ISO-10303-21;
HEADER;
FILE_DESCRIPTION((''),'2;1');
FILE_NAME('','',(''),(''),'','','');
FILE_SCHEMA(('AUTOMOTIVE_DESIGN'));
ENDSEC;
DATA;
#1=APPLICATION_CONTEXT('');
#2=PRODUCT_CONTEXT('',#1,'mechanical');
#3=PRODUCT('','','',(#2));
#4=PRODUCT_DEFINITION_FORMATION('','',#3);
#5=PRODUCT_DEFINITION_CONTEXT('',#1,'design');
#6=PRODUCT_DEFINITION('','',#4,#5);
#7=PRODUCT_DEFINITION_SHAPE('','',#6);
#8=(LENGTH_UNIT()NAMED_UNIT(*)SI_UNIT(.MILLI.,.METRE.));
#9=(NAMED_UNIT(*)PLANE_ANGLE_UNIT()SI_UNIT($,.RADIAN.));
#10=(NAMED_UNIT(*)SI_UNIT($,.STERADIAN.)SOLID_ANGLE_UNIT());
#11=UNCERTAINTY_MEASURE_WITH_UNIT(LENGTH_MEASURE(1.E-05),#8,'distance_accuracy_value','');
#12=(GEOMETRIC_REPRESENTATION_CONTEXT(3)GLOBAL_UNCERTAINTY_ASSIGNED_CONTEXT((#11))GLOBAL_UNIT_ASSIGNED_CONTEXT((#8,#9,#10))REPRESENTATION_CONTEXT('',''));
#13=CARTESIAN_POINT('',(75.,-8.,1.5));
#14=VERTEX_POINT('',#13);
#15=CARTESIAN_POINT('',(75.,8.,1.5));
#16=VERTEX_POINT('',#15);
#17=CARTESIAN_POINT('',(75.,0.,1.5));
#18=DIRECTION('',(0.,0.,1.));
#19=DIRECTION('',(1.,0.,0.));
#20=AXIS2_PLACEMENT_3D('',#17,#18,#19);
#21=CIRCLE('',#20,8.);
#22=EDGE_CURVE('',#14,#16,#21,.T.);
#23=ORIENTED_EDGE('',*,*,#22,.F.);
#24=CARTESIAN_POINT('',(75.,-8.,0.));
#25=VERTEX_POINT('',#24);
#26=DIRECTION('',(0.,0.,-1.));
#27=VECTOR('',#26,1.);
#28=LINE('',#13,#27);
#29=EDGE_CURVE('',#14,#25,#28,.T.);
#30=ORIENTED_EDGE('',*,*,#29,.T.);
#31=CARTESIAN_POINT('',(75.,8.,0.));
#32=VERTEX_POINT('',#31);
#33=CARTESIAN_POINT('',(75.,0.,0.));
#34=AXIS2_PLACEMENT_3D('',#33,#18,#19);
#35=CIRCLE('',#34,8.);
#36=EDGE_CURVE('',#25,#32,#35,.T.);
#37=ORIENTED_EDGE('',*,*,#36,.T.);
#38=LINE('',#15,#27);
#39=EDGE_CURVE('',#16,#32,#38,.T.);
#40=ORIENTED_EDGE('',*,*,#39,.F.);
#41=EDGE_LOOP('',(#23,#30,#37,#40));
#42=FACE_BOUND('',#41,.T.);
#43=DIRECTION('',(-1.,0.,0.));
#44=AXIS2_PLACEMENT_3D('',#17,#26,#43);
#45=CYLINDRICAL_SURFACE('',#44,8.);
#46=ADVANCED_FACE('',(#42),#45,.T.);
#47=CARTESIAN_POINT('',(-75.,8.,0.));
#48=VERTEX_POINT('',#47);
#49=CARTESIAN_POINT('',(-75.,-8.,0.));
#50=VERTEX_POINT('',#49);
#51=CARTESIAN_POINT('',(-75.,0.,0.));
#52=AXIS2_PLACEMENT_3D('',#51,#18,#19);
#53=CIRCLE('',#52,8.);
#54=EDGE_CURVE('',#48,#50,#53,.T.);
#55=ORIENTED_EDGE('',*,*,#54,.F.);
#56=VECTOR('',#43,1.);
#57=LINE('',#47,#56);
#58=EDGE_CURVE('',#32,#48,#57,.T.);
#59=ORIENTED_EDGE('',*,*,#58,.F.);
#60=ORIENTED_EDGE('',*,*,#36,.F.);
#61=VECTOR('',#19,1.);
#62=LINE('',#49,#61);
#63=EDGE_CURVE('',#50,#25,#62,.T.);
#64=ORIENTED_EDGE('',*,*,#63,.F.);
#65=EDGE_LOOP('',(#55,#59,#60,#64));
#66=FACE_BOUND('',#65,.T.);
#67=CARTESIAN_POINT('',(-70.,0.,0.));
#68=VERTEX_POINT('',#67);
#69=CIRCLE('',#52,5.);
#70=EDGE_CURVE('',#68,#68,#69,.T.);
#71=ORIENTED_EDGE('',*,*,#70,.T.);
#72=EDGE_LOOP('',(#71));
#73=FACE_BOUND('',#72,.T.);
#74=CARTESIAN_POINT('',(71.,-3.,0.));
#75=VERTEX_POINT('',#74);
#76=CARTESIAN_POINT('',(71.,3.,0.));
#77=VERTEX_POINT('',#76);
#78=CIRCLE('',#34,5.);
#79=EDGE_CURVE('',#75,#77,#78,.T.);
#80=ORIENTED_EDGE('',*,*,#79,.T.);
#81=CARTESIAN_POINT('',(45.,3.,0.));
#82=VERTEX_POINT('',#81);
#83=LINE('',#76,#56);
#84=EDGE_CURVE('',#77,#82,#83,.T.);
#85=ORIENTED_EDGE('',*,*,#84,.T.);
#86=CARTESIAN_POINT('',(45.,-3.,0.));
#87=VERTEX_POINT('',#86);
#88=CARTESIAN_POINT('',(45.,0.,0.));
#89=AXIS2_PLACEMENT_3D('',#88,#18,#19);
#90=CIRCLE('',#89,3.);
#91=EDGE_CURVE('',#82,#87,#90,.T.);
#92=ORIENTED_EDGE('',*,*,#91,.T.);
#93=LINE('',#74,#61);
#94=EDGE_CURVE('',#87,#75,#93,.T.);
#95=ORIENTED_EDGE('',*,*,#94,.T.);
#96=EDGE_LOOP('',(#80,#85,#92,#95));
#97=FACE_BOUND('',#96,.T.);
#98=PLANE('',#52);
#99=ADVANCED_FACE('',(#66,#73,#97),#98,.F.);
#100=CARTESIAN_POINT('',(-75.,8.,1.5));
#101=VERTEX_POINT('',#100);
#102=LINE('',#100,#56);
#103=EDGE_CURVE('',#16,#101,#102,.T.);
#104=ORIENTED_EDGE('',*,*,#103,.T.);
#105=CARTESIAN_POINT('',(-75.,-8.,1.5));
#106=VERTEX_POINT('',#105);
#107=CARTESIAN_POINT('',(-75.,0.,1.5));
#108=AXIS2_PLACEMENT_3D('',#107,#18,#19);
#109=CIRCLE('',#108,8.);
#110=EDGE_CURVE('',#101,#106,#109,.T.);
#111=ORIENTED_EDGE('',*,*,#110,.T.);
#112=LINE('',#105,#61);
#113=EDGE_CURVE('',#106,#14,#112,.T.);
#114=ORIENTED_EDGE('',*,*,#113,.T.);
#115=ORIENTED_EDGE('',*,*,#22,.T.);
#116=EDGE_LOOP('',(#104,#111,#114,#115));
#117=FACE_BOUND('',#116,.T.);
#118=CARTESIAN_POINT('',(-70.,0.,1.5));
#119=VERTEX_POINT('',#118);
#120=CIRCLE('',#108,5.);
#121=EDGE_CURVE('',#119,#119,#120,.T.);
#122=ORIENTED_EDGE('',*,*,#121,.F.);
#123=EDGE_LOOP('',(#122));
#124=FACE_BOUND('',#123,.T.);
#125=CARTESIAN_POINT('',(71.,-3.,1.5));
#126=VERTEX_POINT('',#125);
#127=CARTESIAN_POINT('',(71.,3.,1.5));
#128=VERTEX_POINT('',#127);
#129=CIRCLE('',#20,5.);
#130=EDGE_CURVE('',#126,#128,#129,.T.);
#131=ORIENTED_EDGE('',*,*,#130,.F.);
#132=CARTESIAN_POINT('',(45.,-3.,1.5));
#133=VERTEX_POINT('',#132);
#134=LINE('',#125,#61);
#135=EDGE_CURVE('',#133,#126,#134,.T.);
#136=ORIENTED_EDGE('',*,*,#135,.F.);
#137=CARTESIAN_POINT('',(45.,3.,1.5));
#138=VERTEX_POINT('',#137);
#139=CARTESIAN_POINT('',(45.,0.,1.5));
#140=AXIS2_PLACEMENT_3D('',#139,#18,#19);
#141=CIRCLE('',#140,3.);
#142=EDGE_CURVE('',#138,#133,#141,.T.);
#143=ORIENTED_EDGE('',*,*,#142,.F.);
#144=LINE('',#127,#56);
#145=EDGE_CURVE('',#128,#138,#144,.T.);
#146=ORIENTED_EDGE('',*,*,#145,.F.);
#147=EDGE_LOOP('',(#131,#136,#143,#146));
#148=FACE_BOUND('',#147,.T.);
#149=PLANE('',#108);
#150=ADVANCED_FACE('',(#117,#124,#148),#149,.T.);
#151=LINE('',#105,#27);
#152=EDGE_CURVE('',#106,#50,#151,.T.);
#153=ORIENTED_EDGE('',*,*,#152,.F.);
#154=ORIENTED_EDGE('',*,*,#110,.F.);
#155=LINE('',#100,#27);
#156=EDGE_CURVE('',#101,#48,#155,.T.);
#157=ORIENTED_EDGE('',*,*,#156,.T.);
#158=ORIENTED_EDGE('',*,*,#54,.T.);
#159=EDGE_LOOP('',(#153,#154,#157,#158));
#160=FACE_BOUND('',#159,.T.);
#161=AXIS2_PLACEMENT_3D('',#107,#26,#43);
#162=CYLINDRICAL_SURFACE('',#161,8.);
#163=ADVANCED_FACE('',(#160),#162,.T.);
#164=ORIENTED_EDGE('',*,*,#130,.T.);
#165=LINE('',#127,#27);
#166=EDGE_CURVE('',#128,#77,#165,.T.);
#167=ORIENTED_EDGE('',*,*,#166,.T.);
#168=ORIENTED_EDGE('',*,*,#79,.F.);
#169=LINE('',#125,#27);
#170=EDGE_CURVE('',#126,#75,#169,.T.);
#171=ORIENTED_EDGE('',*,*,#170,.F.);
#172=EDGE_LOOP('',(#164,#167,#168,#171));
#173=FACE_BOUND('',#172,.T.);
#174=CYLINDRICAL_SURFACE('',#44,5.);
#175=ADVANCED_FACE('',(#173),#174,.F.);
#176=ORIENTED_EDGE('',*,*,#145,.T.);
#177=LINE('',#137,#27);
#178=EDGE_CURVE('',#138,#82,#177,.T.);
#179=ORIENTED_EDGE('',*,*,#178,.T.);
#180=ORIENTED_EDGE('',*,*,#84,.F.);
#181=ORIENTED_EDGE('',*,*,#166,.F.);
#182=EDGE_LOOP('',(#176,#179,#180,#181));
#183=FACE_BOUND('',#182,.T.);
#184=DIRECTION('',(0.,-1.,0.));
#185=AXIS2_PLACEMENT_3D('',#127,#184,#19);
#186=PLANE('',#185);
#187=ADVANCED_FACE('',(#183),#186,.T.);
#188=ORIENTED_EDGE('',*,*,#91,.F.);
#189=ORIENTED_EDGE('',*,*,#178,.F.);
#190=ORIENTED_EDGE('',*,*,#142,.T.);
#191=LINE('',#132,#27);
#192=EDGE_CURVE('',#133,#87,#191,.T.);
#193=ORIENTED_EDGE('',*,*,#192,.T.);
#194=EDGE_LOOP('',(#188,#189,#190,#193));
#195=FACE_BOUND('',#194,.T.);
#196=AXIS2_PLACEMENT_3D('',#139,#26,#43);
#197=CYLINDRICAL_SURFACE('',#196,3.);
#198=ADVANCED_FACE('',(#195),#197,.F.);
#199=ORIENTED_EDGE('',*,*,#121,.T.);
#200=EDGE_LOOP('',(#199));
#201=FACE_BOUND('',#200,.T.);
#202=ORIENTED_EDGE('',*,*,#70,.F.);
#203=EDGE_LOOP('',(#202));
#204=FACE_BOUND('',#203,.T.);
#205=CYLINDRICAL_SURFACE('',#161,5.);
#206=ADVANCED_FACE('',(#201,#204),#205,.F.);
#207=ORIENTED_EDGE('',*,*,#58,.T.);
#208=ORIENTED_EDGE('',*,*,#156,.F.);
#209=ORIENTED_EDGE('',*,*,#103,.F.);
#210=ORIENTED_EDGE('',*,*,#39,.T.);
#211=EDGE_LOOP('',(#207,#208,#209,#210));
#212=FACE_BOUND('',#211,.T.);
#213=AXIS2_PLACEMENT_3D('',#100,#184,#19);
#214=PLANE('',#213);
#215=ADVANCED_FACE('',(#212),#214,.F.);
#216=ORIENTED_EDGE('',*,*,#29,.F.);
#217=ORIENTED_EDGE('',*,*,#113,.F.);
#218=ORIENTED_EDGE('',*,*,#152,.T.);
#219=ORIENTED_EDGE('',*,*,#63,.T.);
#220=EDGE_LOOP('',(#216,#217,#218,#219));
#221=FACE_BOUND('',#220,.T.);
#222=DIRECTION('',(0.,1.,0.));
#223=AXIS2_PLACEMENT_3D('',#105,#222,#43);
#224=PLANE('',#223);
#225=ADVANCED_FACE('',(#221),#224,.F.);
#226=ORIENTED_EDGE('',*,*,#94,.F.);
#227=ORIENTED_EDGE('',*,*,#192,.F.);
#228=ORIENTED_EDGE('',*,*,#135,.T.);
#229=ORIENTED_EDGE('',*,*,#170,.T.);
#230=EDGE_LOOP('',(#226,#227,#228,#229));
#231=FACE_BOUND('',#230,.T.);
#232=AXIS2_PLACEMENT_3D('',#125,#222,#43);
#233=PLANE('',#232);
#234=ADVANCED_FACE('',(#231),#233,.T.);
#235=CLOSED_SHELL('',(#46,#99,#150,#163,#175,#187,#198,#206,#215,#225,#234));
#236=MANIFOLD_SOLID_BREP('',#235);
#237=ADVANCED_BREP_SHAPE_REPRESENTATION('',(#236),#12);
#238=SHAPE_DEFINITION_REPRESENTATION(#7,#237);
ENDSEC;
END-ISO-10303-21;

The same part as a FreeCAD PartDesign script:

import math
import FreeCAD as App
import Part
import Sketcher
from FreeCAD import Vector
Q = App.Units.Quantity

doc = App.newDocument("Part")
params = doc.addObject("Spreadsheet::Sheet", "Params")
for row, (alias, value) in enumerate([
    ("sketch1_diameter", "10 mm"),
    ("sketch1_radius", "8 mm"),
    ("sketch1_radius2", "3 mm"),
    ("sketch1_width", "150 mm"),
    ("sketch1_width2", "26 mm"),
    ("pad1_length", "1.5 mm"),
], start=1):
    params.set(f"A{row}", alias)
    params.set(f"B{row}", "=" + value)
    params.setAlias(f"B{row}", alias)

body = doc.addObject("PartDesign::Body", "Body")

sketch1 = doc.addObject("Sketcher::SketchObject", "Sketch")
body.addObject(sketch1)
sketch1.AttachmentSupport = (doc.XY_Plane, [""])
sketch1.MapMode = "FlatFace"
sketch1.addGeometry([
    Part.LineSegment(Vector(75, 8, 0), Vector(-75, 8, 0)),
    Part.ArcOfCircle(Part.Circle(Vector(-75, 0, 0), Vector(0, 0, 1), 8), math.radians(90), math.radians(270)),
    Part.LineSegment(Vector(-75, -8, 0), Vector(75, -8, 0)),
    Part.ArcOfCircle(Part.Circle(Vector(75, 0, 0), Vector(0, 0, 1), 8), math.radians(-90), math.radians(90)),
    Part.LineSegment(Vector(71, -3, 0), Vector(45, -3, 0)),
    Part.ArcOfCircle(Part.Circle(Vector(45, 0, 0), Vector(0, 0, 1), 3), math.radians(90), math.radians(270)),
    Part.LineSegment(Vector(45, 3, 0), Vector(71, 3, 0)),
    Part.ArcOfCircle(Part.Circle(Vector(75, 0, 0), Vector(0, 0, 1), 5), math.radians(-143.130102), math.radians(143.130102)),
    Part.Circle(Vector(-75, 0, 0), Vector(0, 0, 1), 5),
], False)
sketch1.addConstraint([
    Sketcher.Constraint("Tangent", 0, 2, 1, 1),
    Sketcher.Constraint("Tangent", 1, 2, 2, 1),
    Sketcher.Constraint("Tangent", 2, 2, 3, 1),
    Sketcher.Constraint("Tangent", 3, 2, 0, 1),
    Sketcher.Constraint("Tangent", 4, 2, 5, 2),
    Sketcher.Constraint("Tangent", 5, 1, 6, 1),
    Sketcher.Constraint("Coincident", 6, 2, 7, 2),
    Sketcher.Constraint("Coincident", 7, 1, 4, 1),
    Sketcher.Constraint("Horizontal", 0),
    Sketcher.Constraint("Horizontal", 2),
    Sketcher.Constraint("Horizontal", 4),
    Sketcher.Constraint("Horizontal", 6),
    Sketcher.Constraint("Coincident", 7, 3, 3, 3),
    Sketcher.Constraint("Coincident", 8, 3, 1, 3),
    Sketcher.Constraint("Equal", 7, 8),
    Sketcher.Constraint("Symmetric", 1, 3, 3, 3, -1, 1),
    Sketcher.Constraint("PointOnObject", 5, 3, -1),
    Sketcher.Constraint("Diameter", 8, Q("10 mm")),
    Sketcher.Constraint("Radius", 1, Q("8 mm")),
    Sketcher.Constraint("Radius", 5, Q("3 mm")),
    Sketcher.Constraint("DistanceX", 0, 2, 0, 1, Q("150 mm")),
    Sketcher.Constraint("DistanceX", 4, 2, 4, 1, Q("26 mm")),
])
sketch1.setExpression("Constraints[17]", "Params.sketch1_diameter")
sketch1.setExpression("Constraints[18]", "Params.sketch1_radius")
sketch1.setExpression("Constraints[19]", "Params.sketch1_radius2")
sketch1.setExpression("Constraints[20]", "Params.sketch1_width")
sketch1.setExpression("Constraints[21]", "Params.sketch1_width2")
pad1 = doc.addObject("PartDesign::Pad", "Pad")
body.addObject(pad1)
pad1.Profile = sketch1
pad1.setExpression("Length", "Params.pad1_length")

doc.recompute()
